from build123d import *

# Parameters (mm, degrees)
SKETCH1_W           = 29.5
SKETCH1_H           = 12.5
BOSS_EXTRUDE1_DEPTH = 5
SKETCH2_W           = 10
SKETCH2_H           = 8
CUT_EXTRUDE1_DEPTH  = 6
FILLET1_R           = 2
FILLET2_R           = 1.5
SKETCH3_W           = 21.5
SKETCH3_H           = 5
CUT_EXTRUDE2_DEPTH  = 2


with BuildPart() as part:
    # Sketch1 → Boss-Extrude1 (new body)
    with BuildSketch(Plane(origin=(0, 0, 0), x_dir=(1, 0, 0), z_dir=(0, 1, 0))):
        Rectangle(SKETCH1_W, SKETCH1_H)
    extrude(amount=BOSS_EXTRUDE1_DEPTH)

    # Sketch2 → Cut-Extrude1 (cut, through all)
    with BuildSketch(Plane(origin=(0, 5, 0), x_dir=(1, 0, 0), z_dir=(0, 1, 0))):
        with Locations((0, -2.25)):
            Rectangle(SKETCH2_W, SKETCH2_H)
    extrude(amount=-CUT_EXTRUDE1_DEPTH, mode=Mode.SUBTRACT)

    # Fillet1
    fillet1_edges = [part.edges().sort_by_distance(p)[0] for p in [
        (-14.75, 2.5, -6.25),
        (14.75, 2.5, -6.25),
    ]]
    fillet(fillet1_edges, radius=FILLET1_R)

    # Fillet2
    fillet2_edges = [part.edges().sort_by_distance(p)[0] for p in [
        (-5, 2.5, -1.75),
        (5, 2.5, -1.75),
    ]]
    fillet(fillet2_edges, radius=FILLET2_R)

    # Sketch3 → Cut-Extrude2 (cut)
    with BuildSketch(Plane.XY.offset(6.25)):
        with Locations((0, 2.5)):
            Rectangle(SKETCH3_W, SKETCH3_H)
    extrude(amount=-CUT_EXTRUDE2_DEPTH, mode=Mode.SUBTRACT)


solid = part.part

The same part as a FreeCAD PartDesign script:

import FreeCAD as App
import Part
import Sketcher
Q = App.Units.Quantity


def edges_at(feature, points):
    """Names of the edges that pass closest to the given points."""
    edges = feature.Shape.Edges
    near = lambda p: min(range(len(edges)), key=lambda i: edges[i].distToShape(Part.Vertex(*p))[0])
    return sorted({f"Edge{near(p) + 1}" for p in points})


def add_polygon(sketch, points):
    """Adds a closed chain of lines whose ends are joined by coincident constraints."""
    first, n = sketch.GeometryCount, len(points)
    for a, b in zip(points, points[1:] + points[:1]):
        sketch.addGeometry(Part.LineSegment(App.Vector(*a, 0), App.Vector(*b, 0)), False)
    for i in range(n):
        sketch.addConstraint(Sketcher.Constraint("Coincident", first + i, 2, first + (i + 1) % n, 1))

doc = App.newDocument("Part")
body = doc.addObject("PartDesign::Body", "Body")

sketch1 = doc.addObject("Sketcher::SketchObject", "Sketch")
body.addObject(sketch1)
sketch1.AttachmentSupport = (doc.XZ_Plane, [""])
sketch1.MapMode = "FlatFace"
add_polygon(sketch1, [(-15, -6), (-15, 6), (15, 6), (15, -6)])
sketch1.addConstraint(Sketcher.Constraint("Vertical", 0))
sketch1.addConstraint(Sketcher.Constraint("Horizontal", 1))
sketch1.addConstraint(Sketcher.Constraint("Vertical", 2))
sketch1.addConstraint(Sketcher.Constraint("Horizontal", 3))
sketch1.addConstraint(Sketcher.Constraint("Symmetric", 0, 2, 2, 2, -1, 1))
sketch1.addConstraint(Sketcher.Constraint("DistanceX", 1, 1, 1, 2, Q("29.5 mm")))
sketch1.addConstraint(Sketcher.Constraint("DistanceY", 0, 1, 0, 2, Q("12.5 mm")))
pad1 = doc.addObject("PartDesign::Pad", "Pad")
body.addObject(pad1)
pad1.Profile = sketch1
pad1.Length = 5
pad1.Reversed = True

sketch2 = doc.addObject("Sketcher::SketchObject", "Sketch001")
body.addObject(sketch2)
sketch2.AttachmentSupport = (doc.XZ_Plane, [""])
sketch2.MapMode = "FlatFace"
sketch2.AttachmentOffset = App.Placement(App.Vector(0, 0, -5), App.Rotation())
add_polygon(sketch2, [(-5, -2), (-5, 6), (5, 6), (5, -2)])
sketch2.addConstraint(Sketcher.Constraint("Vertical", 0))
sketch2.addConstraint(Sketcher.Constraint("Horizontal", 1))
sketch2.addConstraint(Sketcher.Constraint("Vertical", 2))
sketch2.addConstraint(Sketcher.Constraint("Horizontal", 3))
sketch2.addConstraint(Sketcher.Constraint("DistanceX", 1, 1, 1, 2, Q("10 mm")))
sketch2.addConstraint(Sketcher.Constraint("DistanceY", 0, 1, 0, 2, Q("8 mm")))
sketch2.addConstraint(Sketcher.Constraint("DistanceX", 0, 2, -1, 1, Q("5 mm")))
sketch2.addConstraint(Sketcher.Constraint("DistanceY", -1, 1, 0, 2, Q("6.25 mm")))
pocket1 = doc.addObject("PartDesign::Pocket", "Pocket")
body.addObject(pocket1)
pocket1.Profile = sketch2
pocket1.Type = "ThroughAll"
pocket1.Reversed = True
doc.recompute()

fillet = doc.addObject("PartDesign::Fillet", "Fillet")
body.addObject(fillet)
fillet.Base = (pocket1, edges_at(pocket1, [(-14.75, 2.5, -6.25), (14.75, 2.5, -6.25)]))
fillet.Radius = 2
doc.recompute()

fillet2 = doc.addObject("PartDesign::Fillet", "Fillet001")
body.addObject(fillet2)
fillet2.Base = (fillet, edges_at(fillet, [(-5, 2.5, -1.75), (5, 2.5, -1.75)]))
fillet2.Radius = 1.5

sketch3 = doc.addObject("Sketcher::SketchObject", "Sketch002")
body.addObject(sketch3)
sketch3.AttachmentSupport = (doc.XY_Plane, [""])
sketch3.MapMode = "FlatFace"
sketch3.AttachmentOffset = App.Placement(App.Vector(0, 0, 6.25), App.Rotation())
add_polygon(sketch3, [(-11, 5), (-11, 0), (11, 0), (11, 5)])
sketch3.addConstraint(Sketcher.Constraint("Vertical", 0))
sketch3.addConstraint(Sketcher.Constraint("Horizontal", 1))
sketch3.addConstraint(Sketcher.Constraint("Vertical", 2))
sketch3.addConstraint(Sketcher.Constraint("Horizontal", 3))
sketch3.addConstraint(Sketcher.Constraint("Symmetric", 0, 2, 1, 2, -1, 1))
sketch3.addConstraint(Sketcher.Constraint("DistanceY", 0, 2, 0, 1, Q("5 mm")))
sketch3.addConstraint(Sketcher.Constraint("DistanceX", 1, 1, 1, 2, Q("21.5 mm")))
pocket2 = doc.addObject("PartDesign::Pocket", "Pocket001")
body.addObject(pocket2)
pocket2.Profile = sketch3
pocket2.Length = 2

doc.recompute()
